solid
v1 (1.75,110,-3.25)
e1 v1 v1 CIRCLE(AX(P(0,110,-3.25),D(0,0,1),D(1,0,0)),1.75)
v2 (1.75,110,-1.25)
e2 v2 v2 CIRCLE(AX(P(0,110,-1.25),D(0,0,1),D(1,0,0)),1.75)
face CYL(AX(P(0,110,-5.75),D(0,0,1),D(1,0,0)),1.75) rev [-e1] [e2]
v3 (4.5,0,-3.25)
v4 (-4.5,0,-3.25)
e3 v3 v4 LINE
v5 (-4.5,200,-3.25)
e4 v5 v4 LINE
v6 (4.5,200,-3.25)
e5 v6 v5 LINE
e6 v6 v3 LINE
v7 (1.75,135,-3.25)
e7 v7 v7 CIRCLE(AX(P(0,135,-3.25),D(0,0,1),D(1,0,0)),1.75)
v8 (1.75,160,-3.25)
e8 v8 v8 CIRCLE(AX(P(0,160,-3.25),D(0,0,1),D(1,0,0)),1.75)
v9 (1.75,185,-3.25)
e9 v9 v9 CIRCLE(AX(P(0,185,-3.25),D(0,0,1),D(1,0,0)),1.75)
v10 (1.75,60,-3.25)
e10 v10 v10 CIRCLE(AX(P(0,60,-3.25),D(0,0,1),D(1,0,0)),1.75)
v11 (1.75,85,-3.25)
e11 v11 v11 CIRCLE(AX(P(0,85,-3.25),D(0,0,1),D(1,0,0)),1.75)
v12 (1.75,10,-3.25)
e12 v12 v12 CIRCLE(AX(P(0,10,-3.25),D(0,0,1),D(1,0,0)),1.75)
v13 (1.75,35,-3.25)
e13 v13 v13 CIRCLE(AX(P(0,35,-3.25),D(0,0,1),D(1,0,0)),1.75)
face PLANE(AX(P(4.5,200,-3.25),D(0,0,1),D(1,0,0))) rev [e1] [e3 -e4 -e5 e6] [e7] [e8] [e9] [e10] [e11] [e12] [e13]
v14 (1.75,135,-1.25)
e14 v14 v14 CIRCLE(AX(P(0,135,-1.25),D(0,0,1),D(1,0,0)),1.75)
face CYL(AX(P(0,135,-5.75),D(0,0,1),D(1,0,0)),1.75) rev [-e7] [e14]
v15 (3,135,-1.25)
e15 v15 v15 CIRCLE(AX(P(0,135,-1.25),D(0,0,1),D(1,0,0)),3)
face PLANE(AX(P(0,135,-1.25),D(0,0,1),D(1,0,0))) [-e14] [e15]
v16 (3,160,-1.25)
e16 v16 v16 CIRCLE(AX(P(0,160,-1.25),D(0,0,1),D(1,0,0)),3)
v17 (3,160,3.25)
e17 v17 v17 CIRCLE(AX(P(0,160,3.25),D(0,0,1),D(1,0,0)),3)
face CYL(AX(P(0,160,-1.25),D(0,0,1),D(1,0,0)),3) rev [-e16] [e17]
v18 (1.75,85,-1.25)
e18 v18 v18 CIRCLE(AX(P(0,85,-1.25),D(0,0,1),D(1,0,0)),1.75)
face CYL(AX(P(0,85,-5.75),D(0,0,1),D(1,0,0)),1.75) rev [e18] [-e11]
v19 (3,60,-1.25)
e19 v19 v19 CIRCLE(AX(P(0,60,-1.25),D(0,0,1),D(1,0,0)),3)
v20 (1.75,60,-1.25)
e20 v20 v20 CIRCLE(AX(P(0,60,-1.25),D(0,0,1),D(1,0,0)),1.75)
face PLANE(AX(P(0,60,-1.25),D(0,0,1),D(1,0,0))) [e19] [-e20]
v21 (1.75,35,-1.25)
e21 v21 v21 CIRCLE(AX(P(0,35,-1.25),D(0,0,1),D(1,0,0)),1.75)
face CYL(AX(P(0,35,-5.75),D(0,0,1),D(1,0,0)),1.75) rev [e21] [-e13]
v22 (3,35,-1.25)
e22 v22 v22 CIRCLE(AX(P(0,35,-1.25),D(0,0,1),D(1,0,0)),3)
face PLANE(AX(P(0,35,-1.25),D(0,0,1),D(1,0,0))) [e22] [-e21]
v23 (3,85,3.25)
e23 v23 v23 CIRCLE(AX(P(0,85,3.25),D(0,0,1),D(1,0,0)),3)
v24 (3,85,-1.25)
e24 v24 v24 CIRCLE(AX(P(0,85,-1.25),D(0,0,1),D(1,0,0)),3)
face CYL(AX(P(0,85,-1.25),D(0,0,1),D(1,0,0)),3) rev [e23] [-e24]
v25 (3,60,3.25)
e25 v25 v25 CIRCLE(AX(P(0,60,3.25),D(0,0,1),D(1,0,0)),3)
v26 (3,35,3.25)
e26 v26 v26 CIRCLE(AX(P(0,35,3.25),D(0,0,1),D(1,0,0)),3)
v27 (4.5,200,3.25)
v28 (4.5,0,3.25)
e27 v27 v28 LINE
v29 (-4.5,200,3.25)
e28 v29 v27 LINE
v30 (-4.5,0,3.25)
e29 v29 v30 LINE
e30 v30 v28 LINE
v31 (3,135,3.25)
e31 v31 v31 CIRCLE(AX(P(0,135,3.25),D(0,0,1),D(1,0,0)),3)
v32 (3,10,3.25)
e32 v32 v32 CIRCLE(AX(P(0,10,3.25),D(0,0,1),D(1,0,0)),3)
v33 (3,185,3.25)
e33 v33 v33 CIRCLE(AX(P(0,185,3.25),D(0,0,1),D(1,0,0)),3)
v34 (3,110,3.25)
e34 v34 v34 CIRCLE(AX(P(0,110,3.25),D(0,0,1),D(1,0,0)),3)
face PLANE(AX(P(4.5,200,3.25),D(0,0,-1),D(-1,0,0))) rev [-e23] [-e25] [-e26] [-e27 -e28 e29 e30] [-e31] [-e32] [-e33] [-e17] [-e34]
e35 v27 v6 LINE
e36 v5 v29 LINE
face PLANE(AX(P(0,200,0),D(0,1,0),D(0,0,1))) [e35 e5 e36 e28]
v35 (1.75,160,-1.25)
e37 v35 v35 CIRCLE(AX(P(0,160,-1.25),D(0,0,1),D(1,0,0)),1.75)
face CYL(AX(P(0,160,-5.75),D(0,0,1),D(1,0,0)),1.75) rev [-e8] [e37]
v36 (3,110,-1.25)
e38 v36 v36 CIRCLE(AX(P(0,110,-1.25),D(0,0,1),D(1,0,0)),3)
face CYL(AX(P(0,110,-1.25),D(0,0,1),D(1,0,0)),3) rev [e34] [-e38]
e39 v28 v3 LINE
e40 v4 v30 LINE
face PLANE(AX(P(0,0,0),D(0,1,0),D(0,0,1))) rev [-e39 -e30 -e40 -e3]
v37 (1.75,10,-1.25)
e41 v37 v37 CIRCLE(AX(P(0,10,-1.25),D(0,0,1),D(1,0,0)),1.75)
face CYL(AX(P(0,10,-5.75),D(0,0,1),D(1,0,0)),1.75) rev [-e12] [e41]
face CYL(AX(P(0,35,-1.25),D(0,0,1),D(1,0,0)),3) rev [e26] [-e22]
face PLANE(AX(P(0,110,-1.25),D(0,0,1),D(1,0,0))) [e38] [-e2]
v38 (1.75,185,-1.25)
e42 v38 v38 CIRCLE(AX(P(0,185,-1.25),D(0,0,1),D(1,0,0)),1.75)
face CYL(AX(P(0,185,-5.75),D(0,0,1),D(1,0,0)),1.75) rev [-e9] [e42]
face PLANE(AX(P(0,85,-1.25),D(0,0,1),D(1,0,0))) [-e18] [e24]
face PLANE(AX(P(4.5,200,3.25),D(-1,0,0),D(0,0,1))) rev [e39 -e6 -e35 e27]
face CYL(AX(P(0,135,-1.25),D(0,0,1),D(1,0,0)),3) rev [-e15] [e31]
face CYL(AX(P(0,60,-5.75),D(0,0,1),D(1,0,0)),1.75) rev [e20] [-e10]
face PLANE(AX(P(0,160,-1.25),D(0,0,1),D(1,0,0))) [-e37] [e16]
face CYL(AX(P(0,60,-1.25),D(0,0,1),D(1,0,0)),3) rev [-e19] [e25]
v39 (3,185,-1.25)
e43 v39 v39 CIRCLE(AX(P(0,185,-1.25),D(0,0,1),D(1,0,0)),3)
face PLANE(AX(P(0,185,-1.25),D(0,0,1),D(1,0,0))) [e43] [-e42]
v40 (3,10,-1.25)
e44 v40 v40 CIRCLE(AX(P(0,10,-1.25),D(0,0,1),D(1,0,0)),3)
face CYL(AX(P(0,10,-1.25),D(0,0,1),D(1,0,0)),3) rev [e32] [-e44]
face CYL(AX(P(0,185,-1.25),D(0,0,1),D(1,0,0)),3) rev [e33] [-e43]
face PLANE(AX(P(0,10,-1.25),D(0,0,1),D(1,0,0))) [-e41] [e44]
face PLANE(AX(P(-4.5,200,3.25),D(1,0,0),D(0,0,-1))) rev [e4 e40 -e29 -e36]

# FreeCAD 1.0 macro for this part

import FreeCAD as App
import Part
import Sketcher

V = App.Vector
Q = App.Units.Quantity


def add_polygon(sketch, points):
    """Adds a closed chain of lines whose ends are joined by coincident constraints."""
    first, n = sketch.GeometryCount, len(points)
    for a, b in zip(points, points[1:] + points[:1]):
        sketch.addGeometry(Part.LineSegment(App.Vector(*a, 0), App.Vector(*b, 0)), False)
    for i in range(n):
        sketch.addConstraint(Sketcher.Constraint("Coincident", first + i, 2, first + (i + 1) % n, 1))

doc = App.newDocument("Part")
body = doc.addObject("PartDesign::Body", "Body")

# Sketch on XZ plane
sketch1 = body.newObject("Sketcher::SketchObject", "Sketch")
sketch1.AttachmentSupport = (doc.getObject("XZ_Plane"), [""])
sketch1.MapMode = "FlatFace"
add_polygon(sketch1, [(-4.5, -3.25), (-4.5, 3.25), (4.5, 3.25), (4.5, -3.25)])  # lines 0-3
sketch1.addConstraint([
    Sketcher.Constraint("Vertical", 0),
    Sketcher.Constraint("Horizontal", 1),
    Sketcher.Constraint("Vertical", 2),
    Sketcher.Constraint("Horizontal", 3),
    Sketcher.Constraint("Symmetric", 0, 2, 2, 2, -1, 1),
    Sketcher.Constraint("DistanceX", 1, 1, 1, 2, Q("9 mm")),
    Sketcher.Constraint("DistanceY", 0, 1, 0, 2, Q("6.5 mm")),
])
pad1 = body.newObject("PartDesign::Pad", "Pad")
pad1.Profile = sketch1
pad1.Length = 200
pad1.Reversed = True

# Sketch on XY plane
sketch2 = body.newObject("Sketcher::SketchObject", "Sketch001")
sketch2.AttachmentSupport = (doc.getObject("XY_Plane"), [""])
sketch2.MapMode = "FlatFace"
sketch2.AttachmentOffset = App.Placement(V(0, 0, 3.25), App.Rotation())
sketch2.addGeometry(Part.Circle(V(0, 10, 0), V(0, 0, 1), 3), False)
sketch2.addConstraint([
    Sketcher.Constraint("PointOnObject", 0, 3, -2),
    Sketcher.Constraint("Diameter", 0, Q("6 mm")),
    Sketcher.Constraint("DistanceY", -1, 1, 0, 3, Q("10 mm")),
])
pocket1 = body.newObject("PartDesign::Pocket", "Pocket")
pocket1.Profile = sketch2
pocket1.Length = 4.5

# Sketch on XY plane
sketch3 = body.newObject("Sketcher::SketchObject", "Sketch002")
sketch3.AttachmentSupport = (doc.getObject("XY_Plane"), [""])
sketch3.MapMode = "FlatFace"
sketch3.AttachmentOffset = App.Placement(V(0, 0, -1.25), App.Rotation())
sketch3.addGeometry(Part.Circle(V(0, 10, 0), V(0, 0, 1), 1.75), False)
sketch3.addConstraint([
    Sketcher.Constraint("PointOnObject", 0, 3, -2),
    Sketcher.Constraint("Diameter", 0, Q("3.5 mm")),
    Sketcher.Constraint("DistanceY", -1, 1, 0, 3, Q("10 mm")),
])
pocket2 = body.newObject("PartDesign::Pocket", "Pocket001")
pocket2.Profile = sketch3
pocket2.Length = 4.5
doc.recompute()

linearpattern = body.newObject("PartDesign::LinearPattern", "LinearPattern")
linearpattern.Originals = [pocket1, pocket2]
linearpattern.Direction = (doc.getObject("Y_Axis"), [""])
linearpattern.Mode = "offset"
linearpattern.Offset = 25
linearpattern.Occurrences = 8
body.Tip = linearpattern

doc.recompute()
